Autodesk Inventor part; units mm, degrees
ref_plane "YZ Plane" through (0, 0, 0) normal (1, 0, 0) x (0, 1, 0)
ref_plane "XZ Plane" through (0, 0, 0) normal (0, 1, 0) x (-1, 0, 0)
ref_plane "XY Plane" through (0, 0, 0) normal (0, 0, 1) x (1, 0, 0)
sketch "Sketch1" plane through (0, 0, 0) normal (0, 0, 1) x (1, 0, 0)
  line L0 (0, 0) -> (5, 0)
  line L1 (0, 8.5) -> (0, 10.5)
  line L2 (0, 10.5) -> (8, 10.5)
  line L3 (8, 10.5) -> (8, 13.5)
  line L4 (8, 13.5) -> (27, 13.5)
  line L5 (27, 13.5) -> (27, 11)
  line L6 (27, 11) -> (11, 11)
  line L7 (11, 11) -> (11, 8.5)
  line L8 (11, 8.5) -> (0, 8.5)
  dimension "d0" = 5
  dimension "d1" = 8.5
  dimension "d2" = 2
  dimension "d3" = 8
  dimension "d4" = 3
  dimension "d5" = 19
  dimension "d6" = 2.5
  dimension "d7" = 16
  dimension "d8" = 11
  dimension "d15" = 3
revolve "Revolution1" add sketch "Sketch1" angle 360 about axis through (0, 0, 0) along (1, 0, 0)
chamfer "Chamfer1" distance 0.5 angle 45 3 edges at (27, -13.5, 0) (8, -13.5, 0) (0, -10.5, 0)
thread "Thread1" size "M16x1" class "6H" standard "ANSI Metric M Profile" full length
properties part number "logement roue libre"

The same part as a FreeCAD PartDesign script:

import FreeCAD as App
import Part
import Sketcher


def edges_at(feature, points):
    """Names of the edges that pass closest to the given points."""
    edges = feature.Shape.Edges
    near = lambda p: min(range(len(edges)), key=lambda i: edges[i].distToShape(Part.Vertex(*p))[0])
    return sorted({f"Edge{near(p) + 1}" for p in points})

doc = App.newDocument("Part")
params = doc.addObject("Spreadsheet::Sheet", "Params")
for row, (alias, value) in enumerate([
    ("sketch1_width", "11 mm"),
    ("sketch1_width2", "16 mm"),
    ("sketch1_width3", "19 mm"),
    ("sketch1_height", "2 mm"),
    ("sketch1_height2", "3 mm"),
    ("revolution_angle", "360 deg"),
    ("chamfer_size", "0.5 mm"),
], start=1):
    params.set(f"A{row}", alias)
    params.set(f"B{row}", "=" + value)
    params.setAlias(f"B{row}", alias)

body = doc.addObject("PartDesign::Body", "Body")

# Sketch on XY plane
sketch1 = body.newObject("Sketcher::SketchObject", "Sketch")
sketch1.AttachmentSupport = (doc.getObject("XY_Plane"), [""])
sketch1.MapMode = "FlatFace"
sketch1.addGeometry([
    Part.LineSegment(App.Vector(0, 10.5, 0), App.Vector(0, 8.5, 0)),  # 0
    Part.LineSegment(App.Vector(0, 8.5, 0), App.Vector(11, 8.5, 0)),  # 1
    Part.LineSegment(App.Vector(11, 8.5, 0), App.Vector(11, 11, 0)),  # 2
    Part.LineSegment(App.Vector(11, 11, 0), App.Vector(27, 11, 0)),  # 3
    Part.LineSegment(App.Vector(27, 11, 0), App.Vector(27, 13.5, 0)),  # 4
    Part.LineSegment(App.Vector(27, 13.5, 0), App.Vector(8, 13.5, 0)),  # 5
    Part.LineSegment(App.Vector(8, 13.5, 0), App.Vector(8, 10.5, 0)),  # 6
    Part.LineSegment(App.Vector(8, 10.5, 0), App.Vector(0, 10.5, 0)),  # 7
], False)
sketch1.addConstraint([
    Sketcher.Constraint("Coincident", 0, 2, 1, 1),
    Sketcher.Constraint("Coincident", 1, 2, 2, 1),
    Sketcher.Constraint("Coincident", 2, 2, 3, 1),
    Sketcher.Constraint("Coincident", 3, 2, 4, 1),
    Sketcher.Constraint("Coincident", 4, 2, 5, 1),
    Sketcher.Constraint("Coincident", 5, 2, 6, 1),
    Sketcher.Constraint("Coincident", 6, 2, 7, 1),
    Sketcher.Constraint("Coincident", 7, 2, 0, 1),
    Sketcher.Constraint("Vertical", 0),
    Sketcher.Constraint("Horizontal", 1),
    Sketcher.Constraint("Vertical", 2),
    Sketcher.Constraint("Horizontal", 3),
    Sketcher.Constraint("Vertical", 4),
    Sketcher.Constraint("Horizontal", 5),
    Sketcher.Constraint("Vertical", 6),
    Sketcher.Constraint("Horizontal", 7),
    Sketcher.Constraint("PointOnObject", 0, 2, -2),
    Sketcher.Constraint("Equal", 2, 4),
    Sketcher.Constraint("DistanceX", 1, 1, 1, 2, 11.0),
    Sketcher.Constraint("DistanceX", 3, 1, 3, 2, 16.0),
    Sketcher.Constraint("DistanceX", 5, 2, 5, 1, 19.0),
    Sketcher.Constraint("DistanceY", 0, 2, 0, 1, 2.0),
    Sketcher.Constraint("DistanceY", 6, 2, 6, 1, 3.0),
    Sketcher.Constraint("DistanceY", -1, 1, 2, 2, 11.0),
])
sketch1.setExpression("Constraints[18]", "Params.sketch1_width")
sketch1.setExpression("Constraints[19]", "Params.sketch1_width2")
sketch1.setExpression("Constraints[20]", "Params.sketch1_width3")
sketch1.setExpression("Constraints[21]", "Params.sketch1_height")
sketch1.setExpression("Constraints[22]", "Params.sketch1_height2")
revolution = body.newObject("PartDesign::Revolution", "Revolution")
revolution.Profile = sketch1
revolution.ReferenceAxis = (sketch1, ["H_Axis"])
revolution.setExpression("Angle", "Params.revolution_angle")
doc.recompute()

chamfer = body.newObject("PartDesign::Chamfer", "Chamfer")
chamfer.Base = (revolution, edges_at(revolution, [(27, -13.5, 0), (8, -13.5, 0), (0, -10.5, 0)]))
chamfer.setExpression("Size", "Params.chamfer_size")

doc.recompute()
